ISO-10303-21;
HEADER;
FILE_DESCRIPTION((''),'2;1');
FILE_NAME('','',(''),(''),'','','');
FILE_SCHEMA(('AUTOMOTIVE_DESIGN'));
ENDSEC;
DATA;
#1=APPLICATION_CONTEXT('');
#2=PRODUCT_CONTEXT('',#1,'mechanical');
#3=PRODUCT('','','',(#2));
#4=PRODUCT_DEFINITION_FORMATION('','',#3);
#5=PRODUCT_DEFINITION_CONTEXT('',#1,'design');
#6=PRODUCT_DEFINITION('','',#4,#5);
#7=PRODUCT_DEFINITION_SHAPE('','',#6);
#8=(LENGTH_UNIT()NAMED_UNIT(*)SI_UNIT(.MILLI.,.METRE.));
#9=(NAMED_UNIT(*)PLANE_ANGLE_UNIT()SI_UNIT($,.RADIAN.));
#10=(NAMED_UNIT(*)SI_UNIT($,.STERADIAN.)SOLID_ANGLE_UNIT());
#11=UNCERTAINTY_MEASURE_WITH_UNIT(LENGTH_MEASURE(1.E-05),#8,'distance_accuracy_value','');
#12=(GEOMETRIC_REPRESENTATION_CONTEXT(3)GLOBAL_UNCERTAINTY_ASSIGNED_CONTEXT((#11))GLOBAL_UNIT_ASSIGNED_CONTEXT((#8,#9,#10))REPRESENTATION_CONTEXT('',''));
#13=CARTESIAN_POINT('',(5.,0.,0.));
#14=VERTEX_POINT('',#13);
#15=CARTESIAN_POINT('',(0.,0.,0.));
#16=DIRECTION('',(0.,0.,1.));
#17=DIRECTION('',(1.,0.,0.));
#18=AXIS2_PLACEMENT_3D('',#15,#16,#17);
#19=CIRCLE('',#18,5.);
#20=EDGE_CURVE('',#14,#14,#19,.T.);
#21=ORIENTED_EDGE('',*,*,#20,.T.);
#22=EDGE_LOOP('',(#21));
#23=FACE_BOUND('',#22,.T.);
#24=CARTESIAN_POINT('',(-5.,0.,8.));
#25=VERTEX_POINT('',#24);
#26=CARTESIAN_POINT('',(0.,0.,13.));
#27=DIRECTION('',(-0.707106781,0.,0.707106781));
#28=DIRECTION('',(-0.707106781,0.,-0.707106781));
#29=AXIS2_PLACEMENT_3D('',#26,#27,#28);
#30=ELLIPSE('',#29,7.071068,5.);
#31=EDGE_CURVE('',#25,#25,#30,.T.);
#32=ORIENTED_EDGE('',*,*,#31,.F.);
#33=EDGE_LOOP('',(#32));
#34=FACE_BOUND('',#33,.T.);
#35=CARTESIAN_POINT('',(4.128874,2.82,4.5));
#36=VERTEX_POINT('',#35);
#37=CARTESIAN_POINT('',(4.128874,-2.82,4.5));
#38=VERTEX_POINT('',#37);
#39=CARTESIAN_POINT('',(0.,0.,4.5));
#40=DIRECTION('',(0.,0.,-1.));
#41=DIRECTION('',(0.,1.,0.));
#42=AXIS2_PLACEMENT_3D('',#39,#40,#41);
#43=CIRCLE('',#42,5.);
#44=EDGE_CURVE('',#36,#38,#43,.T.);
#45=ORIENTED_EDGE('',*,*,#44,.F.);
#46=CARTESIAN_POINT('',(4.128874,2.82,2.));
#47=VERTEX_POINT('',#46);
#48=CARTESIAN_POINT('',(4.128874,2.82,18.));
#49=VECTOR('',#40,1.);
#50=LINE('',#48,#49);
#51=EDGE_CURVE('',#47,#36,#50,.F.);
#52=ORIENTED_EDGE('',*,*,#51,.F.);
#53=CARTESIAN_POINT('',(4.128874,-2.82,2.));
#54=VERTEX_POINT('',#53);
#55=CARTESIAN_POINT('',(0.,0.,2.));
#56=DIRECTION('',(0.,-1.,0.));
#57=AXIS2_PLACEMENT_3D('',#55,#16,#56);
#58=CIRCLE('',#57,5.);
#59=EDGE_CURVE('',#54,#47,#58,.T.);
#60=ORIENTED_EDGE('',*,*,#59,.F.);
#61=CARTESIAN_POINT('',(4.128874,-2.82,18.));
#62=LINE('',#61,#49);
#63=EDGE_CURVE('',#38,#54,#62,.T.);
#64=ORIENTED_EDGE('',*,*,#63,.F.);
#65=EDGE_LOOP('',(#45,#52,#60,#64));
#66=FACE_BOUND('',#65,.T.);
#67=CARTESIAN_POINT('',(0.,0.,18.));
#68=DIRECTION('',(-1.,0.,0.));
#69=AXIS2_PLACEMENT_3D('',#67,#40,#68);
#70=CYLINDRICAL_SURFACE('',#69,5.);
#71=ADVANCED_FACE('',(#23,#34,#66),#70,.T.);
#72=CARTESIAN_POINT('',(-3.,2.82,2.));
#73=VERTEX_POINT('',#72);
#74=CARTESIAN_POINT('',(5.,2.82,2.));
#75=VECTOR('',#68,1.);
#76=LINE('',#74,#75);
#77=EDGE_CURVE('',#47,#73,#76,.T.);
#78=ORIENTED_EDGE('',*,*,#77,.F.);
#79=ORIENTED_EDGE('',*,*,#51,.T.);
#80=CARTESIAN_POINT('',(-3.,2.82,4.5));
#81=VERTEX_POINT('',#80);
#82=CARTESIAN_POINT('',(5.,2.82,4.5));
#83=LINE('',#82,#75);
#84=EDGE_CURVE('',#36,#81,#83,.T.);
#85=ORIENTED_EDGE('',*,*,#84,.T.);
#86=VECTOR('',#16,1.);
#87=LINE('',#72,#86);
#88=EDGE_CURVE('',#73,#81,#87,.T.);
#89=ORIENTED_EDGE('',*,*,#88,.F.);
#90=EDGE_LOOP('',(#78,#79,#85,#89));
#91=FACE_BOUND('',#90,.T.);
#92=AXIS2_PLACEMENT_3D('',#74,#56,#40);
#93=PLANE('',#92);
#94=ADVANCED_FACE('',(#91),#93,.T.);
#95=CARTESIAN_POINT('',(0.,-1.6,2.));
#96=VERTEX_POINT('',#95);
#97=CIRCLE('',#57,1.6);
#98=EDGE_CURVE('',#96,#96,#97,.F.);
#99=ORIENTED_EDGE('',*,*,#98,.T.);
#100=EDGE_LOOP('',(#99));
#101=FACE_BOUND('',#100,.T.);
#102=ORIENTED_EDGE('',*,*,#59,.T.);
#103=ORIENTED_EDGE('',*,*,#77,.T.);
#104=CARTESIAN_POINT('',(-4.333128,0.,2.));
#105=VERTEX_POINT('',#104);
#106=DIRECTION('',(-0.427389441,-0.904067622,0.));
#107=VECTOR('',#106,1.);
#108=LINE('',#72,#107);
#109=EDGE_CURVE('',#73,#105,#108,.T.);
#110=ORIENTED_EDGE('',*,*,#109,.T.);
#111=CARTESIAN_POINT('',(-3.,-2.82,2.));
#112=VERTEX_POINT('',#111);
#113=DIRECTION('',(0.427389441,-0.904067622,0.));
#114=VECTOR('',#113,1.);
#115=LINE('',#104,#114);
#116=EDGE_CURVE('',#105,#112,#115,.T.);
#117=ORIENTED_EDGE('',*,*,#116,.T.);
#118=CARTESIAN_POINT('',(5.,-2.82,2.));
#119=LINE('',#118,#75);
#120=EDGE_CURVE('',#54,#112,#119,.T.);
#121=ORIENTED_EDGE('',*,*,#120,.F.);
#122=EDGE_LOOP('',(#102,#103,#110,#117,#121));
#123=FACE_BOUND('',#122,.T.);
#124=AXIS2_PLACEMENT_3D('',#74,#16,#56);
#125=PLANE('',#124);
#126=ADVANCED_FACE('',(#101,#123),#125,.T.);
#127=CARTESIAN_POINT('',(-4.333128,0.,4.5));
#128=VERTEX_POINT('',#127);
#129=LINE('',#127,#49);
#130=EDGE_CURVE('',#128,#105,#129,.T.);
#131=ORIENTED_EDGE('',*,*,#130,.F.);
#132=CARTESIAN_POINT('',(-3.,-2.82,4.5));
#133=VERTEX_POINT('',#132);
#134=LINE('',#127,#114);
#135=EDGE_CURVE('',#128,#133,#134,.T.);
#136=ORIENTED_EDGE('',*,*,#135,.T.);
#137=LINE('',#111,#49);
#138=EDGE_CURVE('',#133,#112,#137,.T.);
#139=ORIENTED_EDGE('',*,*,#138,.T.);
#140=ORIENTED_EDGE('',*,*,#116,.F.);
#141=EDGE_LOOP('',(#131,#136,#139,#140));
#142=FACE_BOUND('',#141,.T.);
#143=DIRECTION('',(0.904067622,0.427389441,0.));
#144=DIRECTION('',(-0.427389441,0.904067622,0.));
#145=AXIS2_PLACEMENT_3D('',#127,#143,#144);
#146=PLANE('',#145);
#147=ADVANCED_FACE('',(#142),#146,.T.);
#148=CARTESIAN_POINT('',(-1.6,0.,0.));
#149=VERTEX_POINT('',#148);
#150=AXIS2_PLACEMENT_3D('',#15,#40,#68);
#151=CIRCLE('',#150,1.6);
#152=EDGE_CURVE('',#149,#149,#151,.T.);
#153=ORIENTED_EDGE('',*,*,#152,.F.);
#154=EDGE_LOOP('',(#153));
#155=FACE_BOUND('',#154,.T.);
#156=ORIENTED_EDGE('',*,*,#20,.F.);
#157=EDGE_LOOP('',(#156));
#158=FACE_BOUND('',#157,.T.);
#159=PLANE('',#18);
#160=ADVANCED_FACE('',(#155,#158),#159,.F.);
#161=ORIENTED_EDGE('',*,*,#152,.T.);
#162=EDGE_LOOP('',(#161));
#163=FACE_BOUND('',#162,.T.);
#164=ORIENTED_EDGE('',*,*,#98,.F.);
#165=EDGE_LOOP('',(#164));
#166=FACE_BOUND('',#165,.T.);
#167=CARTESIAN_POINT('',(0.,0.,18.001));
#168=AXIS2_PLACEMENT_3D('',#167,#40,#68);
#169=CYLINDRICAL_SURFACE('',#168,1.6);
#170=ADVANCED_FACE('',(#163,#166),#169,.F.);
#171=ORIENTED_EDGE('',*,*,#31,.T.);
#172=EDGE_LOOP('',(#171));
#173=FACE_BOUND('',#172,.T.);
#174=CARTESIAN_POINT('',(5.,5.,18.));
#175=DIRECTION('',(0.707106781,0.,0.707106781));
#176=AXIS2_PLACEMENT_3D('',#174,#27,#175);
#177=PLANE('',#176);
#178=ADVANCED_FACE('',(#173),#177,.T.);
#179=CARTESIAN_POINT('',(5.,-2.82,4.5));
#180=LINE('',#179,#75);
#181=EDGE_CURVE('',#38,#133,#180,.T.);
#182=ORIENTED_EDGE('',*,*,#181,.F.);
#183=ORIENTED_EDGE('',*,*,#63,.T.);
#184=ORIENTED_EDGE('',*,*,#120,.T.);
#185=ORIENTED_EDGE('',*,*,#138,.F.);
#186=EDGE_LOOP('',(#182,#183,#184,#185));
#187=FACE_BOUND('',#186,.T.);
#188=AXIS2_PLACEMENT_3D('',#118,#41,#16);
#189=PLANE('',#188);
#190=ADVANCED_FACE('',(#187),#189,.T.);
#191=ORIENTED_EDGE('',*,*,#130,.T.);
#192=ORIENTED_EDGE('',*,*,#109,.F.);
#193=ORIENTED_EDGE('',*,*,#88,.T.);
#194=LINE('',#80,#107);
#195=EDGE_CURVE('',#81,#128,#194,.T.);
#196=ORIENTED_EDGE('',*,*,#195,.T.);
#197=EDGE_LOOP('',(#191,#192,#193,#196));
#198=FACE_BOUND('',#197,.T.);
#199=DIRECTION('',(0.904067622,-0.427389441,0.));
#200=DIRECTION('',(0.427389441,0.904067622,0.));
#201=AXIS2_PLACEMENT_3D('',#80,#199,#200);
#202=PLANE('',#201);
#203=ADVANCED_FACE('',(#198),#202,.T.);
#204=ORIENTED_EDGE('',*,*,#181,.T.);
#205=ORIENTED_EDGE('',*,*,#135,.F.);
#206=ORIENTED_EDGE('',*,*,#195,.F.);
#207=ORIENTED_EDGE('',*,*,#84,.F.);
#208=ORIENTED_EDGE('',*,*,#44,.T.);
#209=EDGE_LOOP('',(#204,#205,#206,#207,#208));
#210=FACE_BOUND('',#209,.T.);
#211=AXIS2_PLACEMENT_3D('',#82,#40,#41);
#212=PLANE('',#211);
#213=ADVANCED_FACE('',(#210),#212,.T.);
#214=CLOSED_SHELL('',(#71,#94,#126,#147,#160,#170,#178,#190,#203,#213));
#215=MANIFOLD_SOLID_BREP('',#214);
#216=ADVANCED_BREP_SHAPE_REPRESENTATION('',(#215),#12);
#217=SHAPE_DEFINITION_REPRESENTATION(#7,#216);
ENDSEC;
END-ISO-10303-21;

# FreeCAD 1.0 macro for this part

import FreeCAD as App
import Part
import Sketcher
from FreeCAD import Vector

doc = App.newDocument("Part")
params = doc.addObject("Spreadsheet::Sheet", "Params")
for row, (alias, value) in enumerate([
    ("sketch1_diameter", "10 mm"),
    ("pad1_length", "18 mm"),
    ("sketch2_width", "10 mm"),
    ("sketch3_height", "2.5 mm"),
    ("sketch3_width", "5.64 mm"),
    ("pocket2_length", "5 mm"),
    ("pocket2_length2", "3 mm"),
    ("sketch4_diameter", "3.2 mm"),
    ("sketch5_height", "5.64 mm"),
    ("pocket4_length", "2.5 mm"),
], start=1):
    params.set(f"A{row}", alias)
    params.set(f"B{row}", "=" + value)
    params.setAlias(f"B{row}", alias)

body = doc.addObject("PartDesign::Body", "Body")

# Sketch on XY plane
sketch1 = body.newObject("Sketcher::SketchObject", "Sketch")
sketch1.AttachmentSupport = (doc.getObject("XY_Plane"), [""])
sketch1.MapMode = "FlatFace"
sketch1.addGeometry(Part.Circle(Vector(0, 0, 0), Vector(0, 0, 1), 5), False)
sketch1.addConstraint([
    Sketcher.Constraint("Coincident", 0, 3, -1, 1),
    Sketcher.Constraint("Diameter", 0, 10.0),
])
sketch1.setExpression("Constraints[1]", "Params.sketch1_diameter")
pad1 = body.newObject("PartDesign::Pad", "Pad")
pad1.Profile = sketch1
pad1.setExpression("Length", "Params.pad1_length")

# Sketch on XZ plane
sketch2 = body.newObject("Sketcher::SketchObject", "Sketch001")
sketch2.AttachmentSupport = (doc.getObject("XZ_Plane"), [""])
sketch2.MapMode = "FlatFace"
sketch2.addGeometry([
    Part.LineSegment(Vector(-5, 18, 0), Vector(5, 18, 0)),
    Part.LineSegment(Vector(5, 18, 0), Vector(-5, 8, 0)),
    Part.LineSegment(Vector(-5, 8, 0), Vector(-5, 18, 0)),
], False)
sketch2.addConstraint([
    Sketcher.Constraint("Coincident", 0, 2, 1, 1),
    Sketcher.Constraint("Coincident", 1, 2, 2, 1),
    Sketcher.Constraint("Coincident", 2, 2, 0, 1),
    Sketcher.Constraint("Horizontal", 0),
    Sketcher.Constraint("Vertical", 2),
    Sketcher.Constraint("Equal", 0, 2),
    Sketcher.Constraint("DistanceX", 0, 1, 0, 2, 10.0),
    Sketcher.Constraint("DistanceX", -1, 1, 0, 2, 5.0),
    Sketcher.Constraint("DistanceY", -1, 1, 0, 2, 18.0),
])
sketch2.setExpression("Constraints[6]", "Params.sketch2_width")
pocket1 = body.newObject("PartDesign::Pocket", "Pocket")
pocket1.Profile = sketch2
pocket1.Type = "ThroughAll"
pocket1.Midplane = True

# Sketch on YZ plane
sketch3 = body.newObject("Sketcher::SketchObject", "Sketch002")
sketch3.AttachmentSupport = (doc.getObject("YZ_Plane"), [""])
sketch3.MapMode = "FlatFace"
sketch3.addGeometry([
    Part.LineSegment(Vector(2.82, 4.5, 0), Vector(-2.82, 4.5, 0)),
    Part.LineSegment(Vector(-2.82, 4.5, 0), Vector(-2.82, 2, 0)),
    Part.LineSegment(Vector(-2.82, 2, 0), Vector(2.82, 2, 0)),
    Part.LineSegment(Vector(2.82, 2, 0), Vector(2.82, 4.5, 0)),
], False)
sketch3.addConstraint([
    Sketcher.Constraint("Coincident", 0, 2, 1, 1),
    Sketcher.Constraint("Coincident", 1, 2, 2, 1),
    Sketcher.Constraint("Coincident", 2, 2, 3, 1),
    Sketcher.Constraint("Coincident", 3, 2, 0, 1),
    Sketcher.Constraint("Horizontal", 0),
    Sketcher.Constraint("Vertical", 1),
    Sketcher.Constraint("Horizontal", 2),
    Sketcher.Constraint("Vertical", 3),
    Sketcher.Constraint("DistanceY", 1, 2, 1, 1, 2.5),
    Sketcher.Constraint("DistanceY", -1, 1, 1, 2, 2.0),
    Sketcher.Constraint("DistanceX", 0, 2, 0, 1, 5.64),
    Sketcher.Constraint("DistanceX", 0, 2, -1, 1, 2.82),
])
sketch3.setExpression("Constraints[8]", "Params.sketch3_height")
sketch3.setExpression("Constraints[10]", "Params.sketch3_width")
pocket2 = body.newObject("PartDesign::Pocket", "Pocket001")
pocket2.Profile = sketch3
pocket2.Type = "TwoLengths"
pocket2.setExpression("Length", "Params.pocket2_length")
pocket2.setExpression("Length2", "Params.pocket2_length2")
pocket2.Reversed = True

# Sketch on XY plane
sketch4 = body.newObject("Sketcher::SketchObject", "Sketch003")
sketch4.AttachmentSupport = (doc.getObject("XY_Plane"), [""])
sketch4.MapMode = "FlatFace"
sketch4.addGeometry(Part.Circle(Vector(0, 0, 0), Vector(0, 0, 1), 1.6), False)
sketch4.addConstraint([
    Sketcher.Constraint("Coincident", 0, 3, -1, 1),
    Sketcher.Constraint("Diameter", 0, 3.2),
])
sketch4.setExpression("Constraints[1]", "Params.sketch4_diameter")
pocket3 = body.newObject("PartDesign::Pocket", "Pocket002")
pocket3.Profile = sketch4
pocket3.Type = "UpToFirst"
pocket3.Reversed = True

# Sketch on XY plane
sketch5 = body.newObject("Sketcher::SketchObject", "Sketch004")
sketch5.AttachmentSupport = (doc.getObject("XY_Plane"), [""])
sketch5.MapMode = "FlatFace"
sketch5.AttachmentOffset = App.Placement(Vector(0, 0, 2), App.Rotation())
sketch5.addGeometry([
    Part.LineSegment(Vector(-3, -2.82, 0), Vector(-3, 2.82, 0)),
    Part.LineSegment(Vector(-3, 2.82, 0), Vector(-4.333128, 0, 0)),
    Part.LineSegment(Vector(-4.333128, 0, 0), Vector(-3, -2.82, 0)),
], False)
sketch5.addConstraint([
    Sketcher.Constraint("Coincident", 0, 2, 1, 1),
    Sketcher.Constraint("Coincident", 1, 2, 2, 1),
    Sketcher.Constraint("Coincident", 2, 2, 0, 1),
    Sketcher.Constraint("Vertical", 0),
    Sketcher.Constraint("PointOnObject", 1, 2, -1),
    Sketcher.Constraint("Equal", 1, 2),
    Sketcher.Constraint("DistanceX", 0, 2, -1, 1, 3.0),
    Sketcher.Constraint("DistanceY", 0, 1, 0, 2, 5.64),
    Sketcher.Constraint("DistanceX", 1, 2, -1, 1, 4.333128),
])
sketch5.setExpression("Constraints[7]", "Params.sketch5_height")
pocket4 = body.newObject("PartDesign::Pocket", "Pocket003")
pocket4.Profile = sketch5
pocket4.setExpression("Length", "Params.pocket4_length")
pocket4.Reversed = True

doc.recompute()
